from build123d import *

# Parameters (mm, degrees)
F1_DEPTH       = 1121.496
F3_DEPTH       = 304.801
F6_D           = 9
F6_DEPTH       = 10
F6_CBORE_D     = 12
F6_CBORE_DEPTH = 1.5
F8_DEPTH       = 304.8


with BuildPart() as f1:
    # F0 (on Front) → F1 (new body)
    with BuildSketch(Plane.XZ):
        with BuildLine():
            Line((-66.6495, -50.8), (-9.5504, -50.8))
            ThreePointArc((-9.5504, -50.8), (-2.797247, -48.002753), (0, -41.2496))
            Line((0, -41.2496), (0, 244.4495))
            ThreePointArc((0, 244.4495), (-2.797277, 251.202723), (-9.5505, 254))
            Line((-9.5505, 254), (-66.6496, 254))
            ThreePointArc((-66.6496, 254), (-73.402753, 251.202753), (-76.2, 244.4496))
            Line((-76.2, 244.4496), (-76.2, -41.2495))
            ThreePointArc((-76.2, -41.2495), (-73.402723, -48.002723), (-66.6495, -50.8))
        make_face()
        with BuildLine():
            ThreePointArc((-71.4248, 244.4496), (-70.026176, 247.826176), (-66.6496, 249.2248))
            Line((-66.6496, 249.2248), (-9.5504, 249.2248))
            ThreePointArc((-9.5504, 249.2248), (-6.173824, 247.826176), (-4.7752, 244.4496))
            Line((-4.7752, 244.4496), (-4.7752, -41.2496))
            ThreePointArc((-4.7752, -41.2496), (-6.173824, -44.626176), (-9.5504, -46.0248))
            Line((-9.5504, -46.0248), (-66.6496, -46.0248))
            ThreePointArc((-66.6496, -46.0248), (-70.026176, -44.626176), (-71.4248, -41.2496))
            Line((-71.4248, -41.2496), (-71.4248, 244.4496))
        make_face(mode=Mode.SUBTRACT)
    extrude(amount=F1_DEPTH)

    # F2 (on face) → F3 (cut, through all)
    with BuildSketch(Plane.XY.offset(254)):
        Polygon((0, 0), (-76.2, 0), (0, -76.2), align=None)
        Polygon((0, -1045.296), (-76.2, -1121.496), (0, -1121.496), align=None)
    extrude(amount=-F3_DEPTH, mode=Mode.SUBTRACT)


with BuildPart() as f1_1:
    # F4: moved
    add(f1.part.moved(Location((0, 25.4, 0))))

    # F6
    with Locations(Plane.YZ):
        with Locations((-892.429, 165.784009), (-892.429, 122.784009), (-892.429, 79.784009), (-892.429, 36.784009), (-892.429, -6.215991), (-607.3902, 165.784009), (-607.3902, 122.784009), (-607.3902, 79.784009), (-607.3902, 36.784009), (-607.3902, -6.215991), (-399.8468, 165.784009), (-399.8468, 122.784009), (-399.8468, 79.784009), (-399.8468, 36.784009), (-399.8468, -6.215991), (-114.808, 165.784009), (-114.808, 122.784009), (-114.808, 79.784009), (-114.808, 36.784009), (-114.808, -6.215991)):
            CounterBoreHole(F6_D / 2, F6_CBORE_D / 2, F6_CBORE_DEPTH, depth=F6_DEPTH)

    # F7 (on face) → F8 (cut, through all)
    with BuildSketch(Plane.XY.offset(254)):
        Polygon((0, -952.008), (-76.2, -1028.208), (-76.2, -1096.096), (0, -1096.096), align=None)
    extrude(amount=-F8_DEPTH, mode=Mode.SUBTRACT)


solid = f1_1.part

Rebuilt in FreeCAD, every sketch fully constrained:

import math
import FreeCAD as App
import Part
import Sketcher

V = App.Vector
Q = App.Units.Quantity


def add_polygon(sketch, points):
    """Adds a closed chain of lines whose ends are joined by coincident constraints."""
    first, n = sketch.GeometryCount, len(points)
    for a, b in zip(points, points[1:] + points[:1]):
        sketch.addGeometry(Part.LineSegment(App.Vector(*a, 0), App.Vector(*b, 0)), False)
    for i in range(n):
        sketch.addConstraint(Sketcher.Constraint("Coincident", first + i, 2, first + (i + 1) % n, 1))

doc = App.newDocument("Part")
params = doc.addObject("Spreadsheet::Sheet", "Params")
for row, (alias, value) in enumerate([
    ("sketch1_radius", "0.3759999 in"),
    ("sketch1_radius2", "0.188 in"),
    ("pad1_length", "1121.496 mm"),
    ("sketch2_width", "3 in"),
    ("hole_diameter", "9 mm"),
    ("hole_depth", "10 mm"),
    ("hole_cbore_diameter", "12 mm"),
    ("hole_cbore_depth", "1.5 mm"),
    ("sketch4_width", "3 in"),
], start=1):
    params.set(f"A{row}", alias)
    params.set(f"B{row}", "=" + value)
    params.setAlias(f"B{row}", alias)

body = doc.addObject("PartDesign::Body", "Body")

# Sketch on XZ plane
sketch1 = doc.addObject("Sketcher::SketchObject", "Sketch")
body.addObject(sketch1)
sketch1.AttachmentSupport = (doc.XZ_Plane, [""])
sketch1.MapMode = "FlatFace"
sketch1.addGeometry(Part.LineSegment(V(-66.6, -50.8, 0), V(-9.6, -50.8, 0)), False)
sketch1.addGeometry(Part.ArcOfCircle(Part.Circle(V(-9.6, -41.2, 0), V(0, 0, 1), 9.6), math.radians(-90), math.radians(0)), False)
sketch1.addGeometry(Part.LineSegment(V(0, -41.2, 0), V(0, 244.4, 0)), False)
sketch1.addGeometry(Part.ArcOfCircle(Part.Circle(V(-9.6, 244.4, 0), V(0, 0, 1), 9.6), math.radians(0), math.radians(90)), False)
sketch1.addGeometry(Part.LineSegment(V(-9.6, 254, 0), V(-66.6, 254, 0)), False)
sketch1.addGeometry(Part.ArcOfCircle(Part.Circle(V(-66.6, 244.4, 0), V(0, 0, 1), 9.6), math.radians(90), math.radians(180)), False)
sketch1.addGeometry(Part.LineSegment(V(-76.2, 244.4, 0), V(-76.2, -41.2, 0)), False)
sketch1.addGeometry(Part.ArcOfCircle(Part.Circle(V(-66.6, -41.2, 0), V(0, 0, 1), 9.6), math.radians(-180), math.radians(-90)), False)
sketch1.addGeometry(Part.LineSegment(V(-71.4, -41.2, 0), V(-71.4, 244.4, 0)), False)
sketch1.addGeometry(Part.ArcOfCircle(Part.Circle(V(-66.6, 244.4, 0), V(0, 0, 1), 4.8), math.radians(90), math.radians(180)), False)
sketch1.addGeometry(Part.LineSegment(V(-66.6, 249.2, 0), V(-9.6, 249.2, 0)), False)
sketch1.addGeometry(Part.ArcOfCircle(Part.Circle(V(-9.6, 244.4, 0), V(0, 0, 1), 4.8), math.radians(0), math.radians(90)), False)
sketch1.addGeometry(Part.LineSegment(V(-4.8, 244.4, 0), V(-4.8, -41.2, 0)), False)
sketch1.addGeometry(Part.ArcOfCircle(Part.Circle(V(-9.6, -41.2, 0), V(0, 0, 1), 4.8), math.radians(-90), math.radians(0)), False)
sketch1.addGeometry(Part.LineSegment(V(-9.6, -46, 0), V(-66.6, -46, 0)), False)
sketch1.addGeometry(Part.ArcOfCircle(Part.Circle(V(-66.6, -41.2, 0), V(0, 0, 1), 4.8), math.radians(-180), math.radians(-90)), False)
sketch1.addConstraint(Sketcher.Constraint("Tangent", 0, 2, 1, 1))
sketch1.addConstraint(Sketcher.Constraint("Tangent", 1, 2, 2, 1))
sketch1.addConstraint(Sketcher.Constraint("Tangent", 2, 2, 3, 1))
sketch1.addConstraint(Sketcher.Constraint("Tangent", 3, 2, 4, 1))
sketch1.addConstraint(Sketcher.Constraint("Tangent", 4, 2, 5, 1))
sketch1.addConstraint(Sketcher.Constraint("Tangent", 5, 2, 6, 1))
sketch1.addConstraint(Sketcher.Constraint("Tangent", 6, 2, 7, 1))
sketch1.addConstraint(Sketcher.Constraint("Tangent", 7, 2, 0, 1))
sketch1.addConstraint(Sketcher.Constraint("Tangent", 8, 2, 9, 2))
sketch1.addConstraint(Sketcher.Constraint("Tangent", 9, 1, 10, 1))
sketch1.addConstraint(Sketcher.Constraint("Tangent", 10, 2, 11, 2))
sketch1.addConstraint(Sketcher.Constraint("Tangent", 11, 1, 12, 1))
sketch1.addConstraint(Sketcher.Constraint("Tangent", 12, 2, 13, 2))
sketch1.addConstraint(Sketcher.Constraint("Tangent", 13, 1, 14, 1))
sketch1.addConstraint(Sketcher.Constraint("Tangent", 14, 2, 15, 2))
sketch1.addConstraint(Sketcher.Constraint("Tangent", 15, 1, 8, 1))
sketch1.addConstraint(Sketcher.Constraint("Horizontal", 0))
sketch1.addConstraint(Sketcher.Constraint("Vertical", 2))
sketch1.addConstraint(Sketcher.Constraint("Horizontal", 4))
sketch1.addConstraint(Sketcher.Constraint("Vertical", 6))
sketch1.addConstraint(Sketcher.Constraint("Vertical", 8))
sketch1.addConstraint(Sketcher.Constraint("Horizontal", 10))
sketch1.addConstraint(Sketcher.Constraint("Vertical", 12))
sketch1.addConstraint(Sketcher.Constraint("Horizontal", 14))
sketch1.addConstraint(Sketcher.Constraint("Coincident", 9, 3, 5, 3))
sketch1.addConstraint(Sketcher.Constraint("Coincident", 13, 3, 1, 3))
sketch1.addConstraint(Sketcher.Constraint("Equal", 1, 5))
sketch1.addConstraint(Sketcher.Constraint("Equal", 3, 7))
sketch1.addConstraint(Sketcher.Constraint("Equal", 9, 11))
sketch1.addConstraint(Sketcher.Constraint("Equal", 11, 13))
sketch1.addConstraint(Sketcher.Constraint("Equal", 13, 15))
sketch1.addConstraint(Sketcher.Constraint("PointOnObject", 1, 2, -2))
sketch1.addConstraint(Sketcher.Constraint("DistanceY", 0, 2, -1, 1, Q("2 in")))
sketch1.addConstraint(Sketcher.Constraint("DistanceY", -1, 1, 3, 2, Q("10 in")))
sketch1.addConstraint(Sketcher.Constraint("DistanceX", 5, 2, -1, 1, Q("3 in")))
sketch1.addConstraint(Sketcher.Constraint("Radius", 1, Q("0.3759999 in")))
sketch1.addConstraint(Sketcher.Constraint("Radius", 9, Q("0.188 in")))
sketch1.addConstraint(Sketcher.Constraint("Radius", 3, 9.550501))
sketch1.setExpression("Constraints[35]", "Params.sketch1_radius")
sketch1.setExpression("Constraints[36]", "Params.sketch1_radius2")
pad1 = doc.addObject("PartDesign::Pad", "Pad")
body.addObject(pad1)
pad1.Profile = sketch1
pad1.setExpression("Length", "Params.pad1_length")

# Sketch on XY plane
sketch2 = doc.addObject("Sketcher::SketchObject", "Sketch001")
body.addObject(sketch2)
sketch2.AttachmentSupport = (doc.XY_Plane, [""])
sketch2.MapMode = "FlatFace"
sketch2.AttachmentOffset = App.Placement(V(0, 0, 10 * 25.4), App.Rotation())
add_polygon(sketch2, [(0, 0), (-76, 0), (0, -76)])  # lines 0-2
add_polygon(sketch2, [(0, -1045), (-76, -1121), (0, -1121)])  # lines 3-5
sketch2.addConstraint(Sketcher.Constraint("Horizontal", 0))
sketch2.addConstraint(Sketcher.Constraint("Vertical", 2))
sketch2.addConstraint(Sketcher.Constraint("Horizontal", 4))
sketch2.addConstraint(Sketcher.Constraint("Vertical", 5))
sketch2.addConstraint(Sketcher.Constraint("Coincident", 2, 2, -1, 1))
sketch2.addConstraint(Sketcher.Constraint("PointOnObject", 4, 2, -2))
sketch2.addConstraint(Sketcher.Constraint("Perpendicular", 1, 3))
sketch2.addConstraint(Sketcher.Constraint("Vertical", 0, 2, 3, 2))
sketch2.addConstraint(Sketcher.Constraint("Equal", 4, 2))
sketch2.addConstraint(Sketcher.Constraint("DistanceX", 0, 2, 0, 1, Q("3 in")))
sketch2.addConstraint(Sketcher.Constraint("DistanceY", 3, 2, -1, 1, 1121.496))
sketch2.setExpression("Constraints[15]", "Params.sketch2_width")
pocket1 = doc.addObject("PartDesign::Pocket", "Pocket")
body.addObject(pocket1)
pocket1.Profile = sketch2
pocket1.Type = "ThroughAll"
body2 = doc.addObject("PartDesign::Body", "Body001")
doc.recompute()

body.Placement = App.Placement(V(0, 25.4, 0), App.Rotation(V(0, 0, 1), 0))
boolean = doc.addObject("PartDesign::Boolean", "Boolean")
body2.addObject(boolean)
boolean.Type = "Fuse"
boolean.addObjects([body])

# Sketch on YZ plane
sketch3 = doc.addObject("Sketcher::SketchObject", "Sketch002")
body2.addObject(sketch3)
sketch3.AttachmentSupport = (doc.getObject("YZ_Plane001"), [""])
sketch3.MapMode = "FlatFace"
sketch3.addGeometry(Part.Circle(V(-892.4, 165.8, 0), V(0, 0, 1), 4.5), False)
sketch3.addGeometry(Part.Circle(V(-892.4, 122.8, 0), V(0, 0, 1), 4.5), False)
sketch3.addGeometry(Part.Circle(V(-892.4, 79.8, 0), V(0, 0, 1), 4.5), False)
sketch3.addGeometry(Part.Circle(V(-892.4, 36.8, 0), V(0, 0, 1), 4.5), False)
sketch3.addGeometry(Part.Circle(V(-892.4, -6.2, 0), V(0, 0, 1), 4.5), False)
sketch3.addGeometry(Part.Circle(V(-607.4, 165.8, 0), V(0, 0, 1), 4.5), False)
sketch3.addGeometry(Part.Circle(V(-607.4, 122.8, 0), V(0, 0, 1), 4.5), False)
sketch3.addGeometry(Part.Circle(V(-607.4, 79.8, 0), V(0, 0, 1), 4.5), False)
sketch3.addGeometry(Part.Circle(V(-607.4, 36.8, 0), V(0, 0, 1), 4.5), False)
sketch3.addGeometry(Part.Circle(V(-607.4, -6.2, 0), V(0, 0, 1), 4.5), False)
sketch3.addGeometry(Part.Circle(V(-399.8, 165.8, 0), V(0, 0, 1), 4.5), False)
sketch3.addGeometry(Part.Circle(V(-399.8, 122.8, 0), V(0, 0, 1), 4.5), False)
sketch3.addGeometry(Part.Circle(V(-399.8, 79.8, 0), V(0, 0, 1), 4.5), False)
sketch3.addGeometry(Part.Circle(V(-399.8, 36.8, 0), V(0, 0, 1), 4.5), False)
sketch3.addGeometry(Part.Circle(V(-399.8, -6.2, 0), V(0, 0, 1), 4.5), False)
sketch3.addGeometry(Part.Circle(V(-114.8, 165.8, 0), V(0, 0, 1), 4.5), False)
sketch3.addGeometry(Part.Circle(V(-114.8, 122.8, 0), V(0, 0, 1), 4.5), False)
sketch3.addGeometry(Part.Circle(V(-114.8, 79.8, 0), V(0, 0, 1), 4.5), False)
sketch3.addGeometry(Part.Circle(V(-114.8, 36.8, 0), V(0, 0, 1), 4.5), False)
sketch3.addGeometry(Part.Circle(V(-114.8, -6.2, 0), V(0, 0, 1), 4.5), False)
sketch3.addConstraint(Sketcher.Constraint("Equal", 0, 1))
sketch3.addConstraint(Sketcher.Constraint("Equal", 1, 2))
sketch3.addConstraint(Sketcher.Constraint("Equal", 2, 3))
sketch3.addConstraint(Sketcher.Constraint("Equal", 3, 4))
sketch3.addConstraint(Sketcher.Constraint("Equal", 4, 5))
sketch3.addConstraint(Sketcher.Constraint("Equal", 5, 6))
sketch3.addConstraint(Sketcher.Constraint("Equal", 6, 7))
sketch3.addConstraint(Sketcher.Constraint("Equal", 7, 8))
sketch3.addConstraint(Sketcher.Constraint("Equal", 8, 9))
sketch3.addConstraint(Sketcher.Constraint("Equal", 9, 10))
sketch3.addConstraint(Sketcher.Constraint("Equal", 10, 11))
sketch3.addConstraint(Sketcher.Constraint("Equal", 11, 12))
sketch3.addConstraint(Sketcher.Constraint("Equal", 12, 13))
sketch3.addConstraint(Sketcher.Constraint("Equal", 13, 14))
sketch3.addConstraint(Sketcher.Constraint("Equal", 14, 15))
sketch3.addConstraint(Sketcher.Constraint("Equal", 15, 16))
sketch3.addConstraint(Sketcher.Constraint("Equal", 16, 17))
sketch3.addConstraint(Sketcher.Constraint("Equal", 17, 18))
sketch3.addConstraint(Sketcher.Constraint("Equal", 18, 19))
sketch3.addConstraint(Sketcher.Constraint("Horizontal", 0, 3, 5, 3))
sketch3.addConstraint(Sketcher.Constraint("Horizontal", 1, 3, 6, 3))
sketch3.addConstraint(Sketcher.Constraint("Horizontal", 2, 3, 7, 3))
sketch3.addConstraint(Sketcher.Constraint("Horizontal", 3, 3, 8, 3))
sketch3.addConstraint(Sketcher.Constraint("Horizontal", 4, 3, 9, 3))
sketch3.addConstraint(Sketcher.Constraint("Horizontal", 5, 3, 10, 3))
sketch3.addConstraint(Sketcher.Constraint("Horizontal", 6, 3, 11, 3))
sketch3.addConstraint(Sketcher.Constraint("Horizontal", 7, 3, 12, 3))
sketch3.addConstraint(Sketcher.Constraint("Horizontal", 8, 3, 13, 3))
sketch3.addConstraint(Sketcher.Constraint("Horizontal", 9, 3, 14, 3))
sketch3.addConstraint(Sketcher.Constraint("Horizontal", 10, 3, 15, 3))
sketch3.addConstraint(Sketcher.Constraint("Horizontal", 11, 3, 16, 3))
sketch3.addConstraint(Sketcher.Constraint("Horizontal", 12, 3, 17, 3))
sketch3.addConstraint(Sketcher.Constraint("Horizontal", 13, 3, 18, 3))
sketch3.addConstraint(Sketcher.Constraint("Horizontal", 14, 3, 19, 3))
sketch3.addConstraint(Sketcher.Constraint("Vertical", 0, 3, 1, 3))
sketch3.addConstraint(Sketcher.Constraint("Vertical", 1, 3, 2, 3))
sketch3.addConstraint(Sketcher.Constraint("Vertical", 2, 3, 3, 3))
sketch3.addConstraint(Sketcher.Constraint("Vertical", 3, 3, 4, 3))
sketch3.addConstraint(Sketcher.Constraint("Vertical", 5, 3, 6, 3))
sketch3.addConstraint(Sketcher.Constraint("Vertical", 6, 3, 7, 3))
sketch3.addConstraint(Sketcher.Constraint("Vertical", 7, 3, 8, 3))
sketch3.addConstraint(Sketcher.Constraint("Vertical", 8, 3, 9, 3))
sketch3.addConstraint(Sketcher.Constraint("Vertical", 10, 3, 11, 3))
sketch3.addConstraint(Sketcher.Constraint("Vertical", 11, 3, 12, 3))
sketch3.addConstraint(Sketcher.Constraint("Vertical", 12, 3, 13, 3))
sketch3.addConstraint(Sketcher.Constraint("Vertical", 13, 3, 14, 3))
sketch3.addConstraint(Sketcher.Constraint("Vertical", 15, 3, 16, 3))
sketch3.addConstraint(Sketcher.Constraint("Vertical", 16, 3, 17, 3))
sketch3.addConstraint(Sketcher.Constraint("Vertical", 17, 3, 18, 3))
sketch3.addConstraint(Sketcher.Constraint("Vertical", 18, 3, 19, 3))
sketch3.addConstraint(Sketcher.Constraint("Diameter", 0, 9.0))
sketch3.addConstraint(Sketcher.Constraint("DistanceX", 15, 3, -1, 1, Q("4.52 in")))
sketch3.addConstraint(Sketcher.Constraint("DistanceX", 0, 3, -1, 1, Q("35.135 in")))
sketch3.addConstraint(Sketcher.Constraint("DistanceX", 5, 3, -1, 1, Q("23.913 in")))
sketch3.addConstraint(Sketcher.Constraint("DistanceX", 10, 3, -1, 1, Q("15.742 in")))
sketch3.addConstraint(Sketcher.Constraint("DistanceY", 1, 3, 0, 3, 43.0))
sketch3.addConstraint(Sketcher.Constraint("DistanceY", 2, 3, 1, 3, 43.0))
sketch3.addConstraint(Sketcher.Constraint("DistanceY", 3, 3, 2, 3, 43.0))
sketch3.addConstraint(Sketcher.Constraint("DistanceY", 4, 3, 3, 3, 43.0))
sketch3.addConstraint(Sketcher.Constraint("DistanceY", -1, 1, 0, 3, 165.784009))
doc.recompute()
hole = doc.addObject("PartDesign::Hole", "Hole")
body2.addObject(hole)
hole.Profile = sketch3
hole.ThreadType = "None"
hole.setExpression("Diameter", "Params.hole_diameter")
hole.DepthType = "Dimension"
hole.setExpression("Depth", "Params.hole_depth")
hole.DrillPoint = "Flat"
hole.HoleCutType = "Counterbore"
hole.setExpression("HoleCutDiameter", "Params.hole_cbore_diameter")
hole.setExpression("HoleCutDepth", "Params.hole_cbore_depth")

# Sketch on XY plane
sketch4 = doc.addObject("Sketcher::SketchObject", "Sketch003")
body2.addObject(sketch4)
sketch4.AttachmentSupport = (doc.getObject("XY_Plane001"), [""])
sketch4.MapMode = "FlatFace"
sketch4.AttachmentOffset = App.Placement(V(0, 0, 10 * 25.4), App.Rotation())
add_polygon(sketch4, [(0, -952), (-76, -1028), (-76, -1096), (0, -1096)])  # lines 0-3
sketch4.addConstraint(Sketcher.Constraint("Vertical", 1))
sketch4.addConstraint(Sketcher.Constraint("Horizontal", 2))
sketch4.addConstraint(Sketcher.Constraint("Vertical", 3))
sketch4.addConstraint(Sketcher.Constraint("PointOnObject", 2, 2, -2))
sketch4.addConstraint(Sketcher.Constraint("DistanceX", 2, 1, 2, 2, Q("3 in")))
sketch4.addConstraint(Sketcher.Constraint("Angle", 0, Q("-135 deg")))
sketch4.addConstraint(Sketcher.Constraint("DistanceY", 1, 2, 1, 1, 67.888))
sketch4.addConstraint(Sketcher.Constraint("DistanceY", 0, 2, -1, 1, 1028.208))
sketch4.setExpression("Constraints[8]", "Params.sketch4_width")
pocket2 = doc.addObject("PartDesign::Pocket", "Pocket001")
body2.addObject(pocket2)
pocket2.Profile = sketch4
pocket2.Type = "ThroughAll"

doc.recompute()
